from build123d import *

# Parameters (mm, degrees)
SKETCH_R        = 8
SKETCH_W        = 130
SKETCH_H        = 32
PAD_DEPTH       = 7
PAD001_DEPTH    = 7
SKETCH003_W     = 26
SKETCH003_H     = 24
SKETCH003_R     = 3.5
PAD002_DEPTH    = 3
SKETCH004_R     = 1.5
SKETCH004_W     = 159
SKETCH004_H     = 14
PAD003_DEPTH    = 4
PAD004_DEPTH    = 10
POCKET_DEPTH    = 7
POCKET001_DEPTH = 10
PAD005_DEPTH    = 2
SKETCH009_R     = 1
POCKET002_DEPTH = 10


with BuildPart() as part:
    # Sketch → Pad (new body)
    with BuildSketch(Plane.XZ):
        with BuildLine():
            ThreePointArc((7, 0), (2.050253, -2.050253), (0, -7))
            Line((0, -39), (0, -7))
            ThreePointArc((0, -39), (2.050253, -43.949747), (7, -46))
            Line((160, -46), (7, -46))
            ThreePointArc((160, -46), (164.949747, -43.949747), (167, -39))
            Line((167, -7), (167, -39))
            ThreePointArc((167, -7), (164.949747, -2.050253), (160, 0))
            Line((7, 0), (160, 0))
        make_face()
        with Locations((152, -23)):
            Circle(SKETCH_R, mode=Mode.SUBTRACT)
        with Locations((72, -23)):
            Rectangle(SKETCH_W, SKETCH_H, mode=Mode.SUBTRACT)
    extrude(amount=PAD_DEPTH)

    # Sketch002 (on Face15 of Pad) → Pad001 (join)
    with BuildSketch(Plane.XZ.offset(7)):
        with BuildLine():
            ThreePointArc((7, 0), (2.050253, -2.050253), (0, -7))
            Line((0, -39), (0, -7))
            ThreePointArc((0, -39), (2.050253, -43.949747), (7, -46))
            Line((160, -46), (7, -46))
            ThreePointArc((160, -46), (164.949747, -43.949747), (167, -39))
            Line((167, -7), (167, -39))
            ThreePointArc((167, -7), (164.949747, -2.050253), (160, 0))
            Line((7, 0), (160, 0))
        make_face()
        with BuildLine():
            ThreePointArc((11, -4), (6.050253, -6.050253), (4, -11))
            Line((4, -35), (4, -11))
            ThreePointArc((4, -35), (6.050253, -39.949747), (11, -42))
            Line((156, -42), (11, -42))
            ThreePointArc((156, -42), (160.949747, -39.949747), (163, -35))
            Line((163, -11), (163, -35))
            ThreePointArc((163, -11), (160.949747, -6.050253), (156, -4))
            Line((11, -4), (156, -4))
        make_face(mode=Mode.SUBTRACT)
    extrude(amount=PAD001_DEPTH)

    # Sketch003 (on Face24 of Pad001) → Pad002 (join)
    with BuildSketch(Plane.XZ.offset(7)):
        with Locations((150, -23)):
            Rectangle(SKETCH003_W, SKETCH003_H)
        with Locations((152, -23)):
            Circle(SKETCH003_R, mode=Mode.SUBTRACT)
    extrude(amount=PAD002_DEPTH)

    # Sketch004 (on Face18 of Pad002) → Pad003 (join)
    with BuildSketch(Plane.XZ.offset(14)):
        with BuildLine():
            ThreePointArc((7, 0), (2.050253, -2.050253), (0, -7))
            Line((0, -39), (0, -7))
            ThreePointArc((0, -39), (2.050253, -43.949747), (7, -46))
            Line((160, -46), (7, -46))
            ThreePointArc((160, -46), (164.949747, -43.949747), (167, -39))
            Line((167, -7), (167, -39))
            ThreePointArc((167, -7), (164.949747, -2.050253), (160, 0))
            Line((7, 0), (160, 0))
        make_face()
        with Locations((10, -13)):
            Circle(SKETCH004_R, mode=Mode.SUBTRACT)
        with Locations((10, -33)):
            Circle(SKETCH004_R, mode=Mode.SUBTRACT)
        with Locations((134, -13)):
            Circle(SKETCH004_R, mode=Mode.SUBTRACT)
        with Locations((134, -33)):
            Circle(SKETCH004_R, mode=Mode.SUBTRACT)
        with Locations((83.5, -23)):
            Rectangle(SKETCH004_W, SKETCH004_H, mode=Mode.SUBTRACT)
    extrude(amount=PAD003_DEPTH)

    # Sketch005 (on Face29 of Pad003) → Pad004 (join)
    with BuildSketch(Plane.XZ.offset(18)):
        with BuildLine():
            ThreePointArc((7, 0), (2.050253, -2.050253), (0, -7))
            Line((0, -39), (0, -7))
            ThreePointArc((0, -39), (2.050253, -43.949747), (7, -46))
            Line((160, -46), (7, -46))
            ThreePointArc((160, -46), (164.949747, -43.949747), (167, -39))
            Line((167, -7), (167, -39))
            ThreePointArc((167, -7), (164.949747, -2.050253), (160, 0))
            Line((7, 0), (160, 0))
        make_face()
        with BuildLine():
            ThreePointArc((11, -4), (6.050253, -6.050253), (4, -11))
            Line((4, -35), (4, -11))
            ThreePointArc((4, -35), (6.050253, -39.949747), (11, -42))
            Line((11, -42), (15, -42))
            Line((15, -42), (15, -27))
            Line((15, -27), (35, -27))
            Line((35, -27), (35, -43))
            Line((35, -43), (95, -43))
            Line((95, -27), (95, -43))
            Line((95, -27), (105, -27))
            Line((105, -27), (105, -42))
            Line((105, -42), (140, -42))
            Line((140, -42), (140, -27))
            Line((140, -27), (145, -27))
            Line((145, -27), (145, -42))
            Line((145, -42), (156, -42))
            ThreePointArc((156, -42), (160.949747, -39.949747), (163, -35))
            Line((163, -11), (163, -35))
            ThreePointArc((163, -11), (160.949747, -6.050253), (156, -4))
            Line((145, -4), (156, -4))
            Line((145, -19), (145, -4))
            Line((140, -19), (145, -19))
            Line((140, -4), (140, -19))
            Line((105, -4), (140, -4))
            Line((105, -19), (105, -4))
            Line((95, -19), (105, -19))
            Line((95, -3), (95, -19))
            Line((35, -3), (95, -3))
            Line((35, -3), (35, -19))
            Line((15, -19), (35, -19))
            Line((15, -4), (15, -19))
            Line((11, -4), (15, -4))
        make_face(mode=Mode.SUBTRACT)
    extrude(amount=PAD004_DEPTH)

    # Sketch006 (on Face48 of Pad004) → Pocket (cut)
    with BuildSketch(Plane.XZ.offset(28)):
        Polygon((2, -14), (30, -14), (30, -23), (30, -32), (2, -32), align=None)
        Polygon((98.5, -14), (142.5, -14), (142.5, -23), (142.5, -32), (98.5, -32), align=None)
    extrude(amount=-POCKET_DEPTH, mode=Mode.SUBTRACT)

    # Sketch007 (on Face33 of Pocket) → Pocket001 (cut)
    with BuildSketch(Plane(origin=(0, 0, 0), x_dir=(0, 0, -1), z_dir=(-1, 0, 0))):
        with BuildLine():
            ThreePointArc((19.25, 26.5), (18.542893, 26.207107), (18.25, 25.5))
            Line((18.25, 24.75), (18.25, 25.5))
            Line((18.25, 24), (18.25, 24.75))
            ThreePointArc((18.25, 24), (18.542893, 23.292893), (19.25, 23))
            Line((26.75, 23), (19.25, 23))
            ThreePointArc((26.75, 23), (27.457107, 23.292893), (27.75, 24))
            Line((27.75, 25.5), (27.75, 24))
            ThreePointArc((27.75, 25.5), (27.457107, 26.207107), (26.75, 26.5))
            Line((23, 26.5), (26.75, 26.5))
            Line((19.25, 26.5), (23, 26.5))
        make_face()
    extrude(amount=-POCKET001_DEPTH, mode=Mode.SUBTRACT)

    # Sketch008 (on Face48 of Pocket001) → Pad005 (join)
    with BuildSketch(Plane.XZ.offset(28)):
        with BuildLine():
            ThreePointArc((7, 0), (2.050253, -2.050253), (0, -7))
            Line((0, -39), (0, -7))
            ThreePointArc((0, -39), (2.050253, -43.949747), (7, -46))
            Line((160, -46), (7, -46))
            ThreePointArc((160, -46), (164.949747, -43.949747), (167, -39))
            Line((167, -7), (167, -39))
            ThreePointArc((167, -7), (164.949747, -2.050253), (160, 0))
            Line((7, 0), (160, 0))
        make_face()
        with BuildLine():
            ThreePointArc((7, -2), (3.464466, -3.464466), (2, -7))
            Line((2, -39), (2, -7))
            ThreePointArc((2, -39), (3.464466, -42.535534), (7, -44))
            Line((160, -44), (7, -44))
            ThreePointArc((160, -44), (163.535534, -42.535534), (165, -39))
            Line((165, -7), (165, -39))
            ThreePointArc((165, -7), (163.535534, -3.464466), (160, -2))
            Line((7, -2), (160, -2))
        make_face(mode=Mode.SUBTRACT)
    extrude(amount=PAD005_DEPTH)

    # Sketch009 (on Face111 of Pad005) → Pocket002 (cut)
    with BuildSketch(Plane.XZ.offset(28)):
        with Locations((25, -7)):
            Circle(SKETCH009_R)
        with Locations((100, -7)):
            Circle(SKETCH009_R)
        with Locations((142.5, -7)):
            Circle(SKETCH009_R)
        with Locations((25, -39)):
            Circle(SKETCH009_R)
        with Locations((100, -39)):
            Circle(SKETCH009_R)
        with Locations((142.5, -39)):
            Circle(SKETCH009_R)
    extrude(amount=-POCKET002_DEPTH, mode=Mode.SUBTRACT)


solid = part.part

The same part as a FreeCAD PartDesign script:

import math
import FreeCAD as App
import Part
import Sketcher
from FreeCAD import Vector
Q = App.Units.Quantity

doc = App.newDocument("Part")
body = doc.addObject("PartDesign::Body", "Body")

sketch1 = doc.addObject("Sketcher::SketchObject", "Sketch")
body.addObject(sketch1)
sketch1.AttachmentSupport = (doc.XZ_Plane, [""])
sketch1.MapMode = "FlatFace"
sketch1.addGeometry([
    Part.ArcOfCircle(Part.Circle(Vector(7.000002, -7.000002, 0), Vector(0, 0, 1), 7.000002), math.radians(90.000013), math.radians(179.999987)),
    Part.LineSegment(Vector(0, -7, 0), Vector(0, -39, 0)),
    Part.ArcOfCircle(Part.Circle(Vector(7.000002, -38.999998, 0), Vector(0, 0, 1), 7.000002), math.radians(-179.999987), math.radians(-90.000013)),
    Part.LineSegment(Vector(7, -46, 0), Vector(160, -46, 0)),
    Part.ArcOfCircle(Part.Circle(Vector(159.999998, -38.999998, 0), Vector(0, 0, 1), 7.000002), math.radians(-89.999987), math.radians(-0.000013)),
    Part.LineSegment(Vector(167, -39, 0), Vector(167, -7, 0)),
    Part.ArcOfCircle(Part.Circle(Vector(159.999998, -7.000002, 0), Vector(0, 0, 1), 7.000002), math.radians(0.000013), math.radians(89.999987)),
    Part.LineSegment(Vector(160, 0, 0), Vector(7, 0, 0)),
    Part.LineSegment(Vector(137, -39, 0), Vector(7, -39, 0)),
    Part.LineSegment(Vector(7, -39, 0), Vector(7, -7, 0)),
    Part.LineSegment(Vector(7, -7, 0), Vector(137, -7, 0)),
    Part.LineSegment(Vector(137, -7, 0), Vector(137, -39, 0)),
    Part.Circle(Vector(152, -23, 0), Vector(0, 0, 1), 8),
], False)
sketch1.addConstraint([
    Sketcher.Constraint("Tangent", 0, 2, 1, 1),
    Sketcher.Constraint("Tangent", 1, 2, 2, 1),
    Sketcher.Constraint("Tangent", 2, 2, 3, 1),
    Sketcher.Constraint("Tangent", 3, 2, 4, 1),
    Sketcher.Constraint("Tangent", 4, 2, 5, 1),
    Sketcher.Constraint("Tangent", 5, 2, 6, 1),
    Sketcher.Constraint("Tangent", 6, 2, 7, 1),
    Sketcher.Constraint("Tangent", 7, 2, 0, 1),
    Sketcher.Constraint("Coincident", 8, 2, 9, 1),
    Sketcher.Constraint("Coincident", 9, 2, 10, 1),
    Sketcher.Constraint("Coincident", 10, 2, 11, 1),
    Sketcher.Constraint("Coincident", 11, 2, 8, 1),
    Sketcher.Constraint("Vertical", 1),
    Sketcher.Constraint("Horizontal", 3),
    Sketcher.Constraint("Vertical", 5),
    Sketcher.Constraint("Horizontal", 7),
    Sketcher.Constraint("Horizontal", 8),
    Sketcher.Constraint("Vertical", 9),
    Sketcher.Constraint("Horizontal", 10),
    Sketcher.Constraint("Vertical", 11),
    Sketcher.Constraint("Coincident", 8, 2, 2, 3),
    Sketcher.Constraint("Coincident", 9, 2, 0, 3),
    Sketcher.Constraint("Equal", 2, 4),
    Sketcher.Constraint("Equal", 4, 6),
    Sketcher.Constraint("PointOnObject", 0, 2, -2),
    Sketcher.Constraint("PointOnObject", 6, 2, -1),
    Sketcher.Constraint("Diameter", 12, Q("16 mm")),
    Sketcher.Constraint("Radius", 0, Q("7.000002 mm")),
    Sketcher.Constraint("DistanceX", 3, 1, 3, 2, Q("153 mm")),
    Sketcher.Constraint("DistanceX", 8, 2, 8, 1, Q("130 mm")),
    Sketcher.Constraint("DistanceY", 1, 2, 1, 1, Q("32 mm")),
    Sketcher.Constraint("DistanceX", -1, 1, 12, 3, Q("152 mm")),
    Sketcher.Constraint("DistanceY", 12, 3, -1, 1, Q("23 mm")),
])
pad1 = doc.addObject("PartDesign::Pad", "Pad")
body.addObject(pad1)
pad1.Profile = sketch1
pad1.Length = 7

sketch2 = doc.addObject("Sketcher::SketchObject", "Sketch001")
body.addObject(sketch2)
sketch2.AttachmentSupport = (doc.XZ_Plane, [""])
sketch2.MapMode = "FlatFace"
sketch2.AttachmentOffset = App.Placement(Vector(0, 0, 7), App.Rotation())
sketch2.addGeometry([
    Part.ArcOfCircle(Part.Circle(Vector(7.000002, -7.000002, 0), Vector(0, 0, 1), 7.000002), math.radians(90.000013), math.radians(179.999987)),
    Part.LineSegment(Vector(0, -7, 0), Vector(0, -39, 0)),
    Part.ArcOfCircle(Part.Circle(Vector(7.000002, -38.999998, 0), Vector(0, 0, 1), 7.000002), math.radians(-179.999987), math.radians(-90.000013)),
    Part.LineSegment(Vector(7, -46, 0), Vector(160, -46, 0)),
    Part.ArcOfCircle(Part.Circle(Vector(159.999998, -38.999998, 0), Vector(0, 0, 1), 7.000002), math.radians(-89.999987), math.radians(-0.000013)),
    Part.LineSegment(Vector(167, -39, 0), Vector(167, -7, 0)),
    Part.ArcOfCircle(Part.Circle(Vector(159.999998, -7.000002, 0), Vector(0, 0, 1), 7.000002), math.radians(0.000013), math.radians(89.999987)),
    Part.LineSegment(Vector(160, 0, 0), Vector(7, 0, 0)),
    Part.ArcOfCircle(Part.Circle(Vector(11.000002, -11.000002, 0), Vector(0, 0, 1), 7.000002), math.radians(90.000013), math.radians(179.999987)),
    Part.LineSegment(Vector(11, -4, 0), Vector(156, -4, 0)),
    Part.ArcOfCircle(Part.Circle(Vector(155.999998, -11.000002, 0), Vector(0, 0, 1), 7.000002), math.radians(0.000013), math.radians(89.999987)),
    Part.LineSegment(Vector(163, -11, 0), Vector(163, -35, 0)),
    Part.ArcOfCircle(Part.Circle(Vector(155.999998, -34.999998, 0), Vector(0, 0, 1), 7.000002), math.radians(-89.999987), math.radians(-0.000013)),
    Part.LineSegment(Vector(156, -42, 0), Vector(11, -42, 0)),
    Part.ArcOfCircle(Part.Circle(Vector(11.000002, -34.999998, 0), Vector(0, 0, 1), 7.000002), math.radians(-179.999987), math.radians(-90.000013)),
    Part.LineSegment(Vector(4, -35, 0), Vector(4, -11, 0)),
], False)
sketch2.addConstraint([
    Sketcher.Constraint("Tangent", 0, 2, 1, 1),
    Sketcher.Constraint("Tangent", 1, 2, 2, 1),
    Sketcher.Constraint("Tangent", 2, 2, 3, 1),
    Sketcher.Constraint("Tangent", 3, 2, 4, 1),
    Sketcher.Constraint("Tangent", 4, 2, 5, 1),
    Sketcher.Constraint("Tangent", 5, 2, 6, 1),
    Sketcher.Constraint("Tangent", 6, 2, 7, 1),
    Sketcher.Constraint("Tangent", 7, 2, 0, 1),
    Sketcher.Constraint("Tangent", 8, 1, 9, 1),
    Sketcher.Constraint("Tangent", 9, 2, 10, 2),
    Sketcher.Constraint("Tangent", 10, 1, 11, 1),
    Sketcher.Constraint("Tangent", 11, 2, 12, 2),
    Sketcher.Constraint("Tangent", 12, 1, 13, 1),
    Sketcher.Constraint("Tangent", 13, 2, 14, 2),
    Sketcher.Constraint("Tangent", 14, 1, 15, 1),
    Sketcher.Constraint("Tangent", 15, 2, 8, 2),
    Sketcher.Constraint("Vertical", 1),
    Sketcher.Constraint("Horizontal", 3),
    Sketcher.Constraint("Vertical", 5),
    Sketcher.Constraint("Horizontal", 7),
    Sketcher.Constraint("Horizontal", 9),
    Sketcher.Constraint("Vertical", 11),
    Sketcher.Constraint("Horizontal", 13),
    Sketcher.Constraint("Vertical", 15),
    Sketcher.Constraint("Equal", 0, 2),
    Sketcher.Constraint("Equal", 2, 4),
    Sketcher.Constraint("Equal", 4, 6),
    Sketcher.Constraint("Equal", 6, 8),
    Sketcher.Constraint("Equal", 8, 10),
    Sketcher.Constraint("Equal", 10, 12),
    Sketcher.Constraint("Equal", 12, 14),
    Sketcher.Constraint("PointOnObject", 0, 2, -2),
    Sketcher.Constraint("PointOnObject", 6, 2, -1),
    Sketcher.Constraint("Radius", 0, Q("7.000002 mm")),
    Sketcher.Constraint("DistanceX", 3, 1, 3, 2, Q("153 mm")),
    Sketcher.Constraint("DistanceX", 9, 1, 9, 2, Q("145 mm")),
    Sketcher.Constraint("DistanceY", 1, 2, 1, 1, Q("32 mm")),
    Sketcher.Constraint("DistanceY", 11, 2, 11, 1, Q("24 mm")),
    Sketcher.Constraint("DistanceX", -1, 1, 8, 3, Q("11.000002 mm")),
    Sketcher.Constraint("DistanceY", 8, 3, -1, 1, Q("11.000002 mm")),
])
pad2 = doc.addObject("PartDesign::Pad", "Pad001")
body.addObject(pad2)
pad2.Profile = sketch2
pad2.Length = 7

sketch3 = doc.addObject("Sketcher::SketchObject", "Sketch002")
body.addObject(sketch3)
sketch3.AttachmentSupport = (doc.XZ_Plane, [""])
sketch3.MapMode = "FlatFace"
sketch3.AttachmentOffset = App.Placement(Vector(0, 0, 7), App.Rotation())
sketch3.addGeometry([
    Part.LineSegment(Vector(137, -11, 0), Vector(137, -35, 0)),
    Part.LineSegment(Vector(137, -35, 0), Vector(163, -35, 0)),
    Part.LineSegment(Vector(163, -35, 0), Vector(163, -11, 0)),
    Part.LineSegment(Vector(163, -11, 0), Vector(137, -11, 0)),
    Part.Circle(Vector(152, -23, 0), Vector(0, 0, 1), 3.5),
], False)
sketch3.addConstraint([
    Sketcher.Constraint("Coincident", 0, 2, 1, 1),
    Sketcher.Constraint("Coincident", 1, 2, 2, 1),
    Sketcher.Constraint("Coincident", 2, 2, 3, 1),
    Sketcher.Constraint("Coincident", 3, 2, 0, 1),
    Sketcher.Constraint("Vertical", 0),
    Sketcher.Constraint("Horizontal", 1),
    Sketcher.Constraint("Vertical", 2),
    Sketcher.Constraint("Horizontal", 3),
    Sketcher.Constraint("Diameter", 4, Q("7 mm")),
    Sketcher.Constraint("DistanceX", 1, 1, 1, 2, Q("26 mm")),
    Sketcher.Constraint("DistanceY", 0, 2, 0, 1, Q("24 mm")),
    Sketcher.Constraint("DistanceX", -1, 1, 4, 3, Q("152 mm")),
    Sketcher.Constraint("DistanceY", 4, 3, -1, 1, Q("23 mm")),
    Sketcher.Constraint("DistanceX", -1, 1, 0, 2, Q("137 mm")),
    Sketcher.Constraint("DistanceY", 0, 2, -1, 1, Q("35 mm")),
])
pad3 = doc.addObject("PartDesign::Pad", "Pad002")
body.addObject(pad3)
pad3.Profile = sketch3
pad3.Length = 3

sketch4 = doc.addObject("Sketcher::SketchObject", "Sketch003")
body.addObject(sketch4)
sketch4.AttachmentSupport = (doc.XZ_Plane, [""])
sketch4.MapMode = "FlatFace"
sketch4.AttachmentOffset = App.Placement(Vector(0, 0, 14), App.Rotation())
sketch4.addGeometry([
    Part.ArcOfCircle(Part.Circle(Vector(7.000002, -7.000002, 0), Vector(0, 0, 1), 7.000002), math.radians(90.000013), math.radians(179.999987)),
    Part.LineSegment(Vector(0, -7, 0), Vector(0, -39, 0)),
    Part.ArcOfCircle(Part.Circle(Vector(7.000002, -38.999998, 0), Vector(0, 0, 1), 7.000002), math.radians(-179.999987), math.radians(-90.000013)),
    Part.LineSegment(Vector(7, -46, 0), Vector(160, -46, 0)),
    Part.ArcOfCircle(Part.Circle(Vector(159.999998, -38.999998, 0), Vector(0, 0, 1), 7.000002), math.radians(-89.999987), math.radians(-0.000013)),
    Part.LineSegment(Vector(167, -39, 0), Vector(167, -7, 0)),
    Part.ArcOfCircle(Part.Circle(Vector(159.999998, -7.000002, 0), Vector(0, 0, 1), 7.000002), math.radians(0.000013), math.radians(89.999987)),
    Part.LineSegment(Vector(160, 0, 0), Vector(7, 0, 0)),
    Part.Circle(Vector(10, -33, 0), Vector(0, 0, 1), 1.5),
    Part.Circle(Vector(134, -33, 0), Vector(0, 0, 1), 1.5),
    Part.Circle(Vector(10, -13, 0), Vector(0, 0, 1), 1.5),
    Part.LineSegment(Vector(163, -30, 0), Vector(4, -30, 0)),
    Part.LineSegment(Vector(4, -30, 0), Vector(4, -16, 0)),
    Part.LineSegment(Vector(4, -16, 0), Vector(163, -16, 0)),
    Part.LineSegment(Vector(163, -16, 0), Vector(163, -30, 0)),
    Part.Circle(Vector(134, -13, 0), Vector(0, 0, 1), 1.5),
], False)
sketch4.addConstraint([
    Sketcher.Constraint("Tangent", 0, 2, 1, 1),
    Sketcher.Constraint("Tangent", 1, 2, 2, 1),
    Sketcher.Constraint("Tangent", 2, 2, 3, 1),
    Sketcher.Constraint("Tangent", 3, 2, 4, 1),
    Sketcher.Constraint("Tangent", 4, 2, 5, 1),
    Sketcher.Constraint("Tangent", 5, 2, 6, 1),
    Sketcher.Constraint("Tangent", 6, 2, 7, 1),
    Sketcher.Constraint("Tangent", 7, 2, 0, 1),
    Sketcher.Constraint("Coincident", 11, 2, 12, 1),
    Sketcher.Constraint("Coincident", 12, 2, 13, 1),
    Sketcher.Constraint("Coincident", 13, 2, 14, 1),
    Sketcher.Constraint("Coincident", 14, 2, 11, 1),
    Sketcher.Constraint("Vertical", 1),
    Sketcher.Constraint("Horizontal", 3),
    Sketcher.Constraint("Vertical", 5),
    Sketcher.Constraint("Horizontal", 7),
    Sketcher.Constraint("Horizontal", 11),
    Sketcher.Constraint("Vertical", 12),
    Sketcher.Constraint("Horizontal", 13),
    Sketcher.Constraint("Vertical", 14),
    Sketcher.Constraint("Equal", 0, 2),
    Sketcher.Constraint("Equal", 2, 4),
    Sketcher.Constraint("Equal", 4, 6),
    Sketcher.Constraint("Equal", 8, 9),
    Sketcher.Constraint("Equal", 9, 10),
    Sketcher.Constraint("Equal", 10, 15),
    Sketcher.Constraint("PointOnObject", 0, 2, -2),
    Sketcher.Constraint("PointOnObject", 6, 2, -1),
    Sketcher.Constraint("Horizontal", 8, 3, 9, 3),
    Sketcher.Constraint("Horizontal", 10, 3, 15, 3),
    Sketcher.Constraint("Vertical", 8, 3, 10, 3),
    Sketcher.Constraint("Vertical", 9, 3, 15, 3),
    Sketcher.Constraint("Diameter", 8, Q("3 mm")),
    Sketcher.Constraint("Radius", 0, Q("7.000002 mm")),
    Sketcher.Constraint("DistanceX", 3, 1, 3, 2, Q("153 mm")),
    Sketcher.Constraint("DistanceX", 11, 2, 11, 1, Q("159 mm")),
    Sketcher.Constraint("DistanceY", 1, 2, 1, 1, Q("32 mm")),
    Sketcher.Constraint("DistanceY", 12, 1, 12, 2, Q("14 mm")),
    Sketcher.Constraint("DistanceX", -1, 1, 8, 3, Q("10 mm")),
    Sketcher.Constraint("DistanceY", 8, 3, -1, 1, Q("33 mm")),
    Sketcher.Constraint("DistanceX", -1, 1, 9, 3, Q("134 mm")),
    Sketcher.Constraint("DistanceY", 10, 3, -1, 1, Q("13 mm")),
    Sketcher.Constraint("DistanceX", -1, 1, 11, 2, Q("4 mm")),
    Sketcher.Constraint("DistanceY", 11, 2, -1, 1, Q("30 mm")),
])
pad4 = doc.addObject("PartDesign::Pad", "Pad003")
body.addObject(pad4)
pad4.Profile = sketch4
pad4.Length = 4

sketch5 = doc.addObject("Sketcher::SketchObject", "Sketch004")
body.addObject(sketch5)
sketch5.AttachmentSupport = (doc.XZ_Plane, [""])
sketch5.MapMode = "FlatFace"
sketch5.AttachmentOffset = App.Placement(Vector(0, 0, 18), App.Rotation())
sketch5.addGeometry([
    Part.ArcOfCircle(Part.Circle(Vector(7.000002, -7.000002, 0), Vector(0, 0, 1), 7.000002), math.radians(90.000013), math.radians(179.999987)),
    Part.LineSegment(Vector(0, -7, 0), Vector(0, -39, 0)),
    Part.ArcOfCircle(Part.Circle(Vector(7.000002, -38.999998, 0), Vector(0, 0, 1), 7.000002), math.radians(-179.999987), math.radians(-90.000013)),
    Part.LineSegment(Vector(7, -46, 0), Vector(160, -46, 0)),
    Part.ArcOfCircle(Part.Circle(Vector(159.999998, -38.999998, 0), Vector(0, 0, 1), 7.000002), math.radians(-89.999987), math.radians(-0.000013)),
    Part.LineSegment(Vector(167, -39, 0), Vector(167, -7, 0)),
    Part.ArcOfCircle(Part.Circle(Vector(159.999998, -7.000002, 0), Vector(0, 0, 1), 7.000002), math.radians(0.000013), math.radians(89.999987)),
    Part.LineSegment(Vector(160, 0, 0), Vector(7, 0, 0)),
    Part.ArcOfCircle(Part.Circle(Vector(11.000002, -11.000002, 0), Vector(0, 0, 1), 7.000002), math.radians(90.000013), math.radians(179.999987)),
    Part.LineSegment(Vector(11, -4, 0), Vector(15, -4, 0)),
    Part.LineSegment(Vector(15, -4, 0), Vector(15, -19, 0)),
    Part.LineSegment(Vector(15, -19, 0), Vector(35, -19, 0)),
    Part.LineSegment(Vector(35, -19, 0), Vector(35, -3, 0)),
    Part.LineSegment(Vector(35, -3, 0), Vector(95, -3, 0)),
    Part.LineSegment(Vector(95, -3, 0), Vector(95, -19, 0)),
    Part.LineSegment(Vector(95, -19, 0), Vector(105, -19, 0)),
    Part.LineSegment(Vector(105, -19, 0), Vector(105, -4, 0)),
    Part.LineSegment(Vector(105, -4, 0), Vector(140, -4, 0)),
    Part.LineSegment(Vector(140, -4, 0), Vector(140, -19, 0)),
    Part.LineSegment(Vector(140, -19, 0), Vector(145, -19, 0)),
    Part.LineSegment(Vector(145, -19, 0), Vector(145, -4, 0)),
    Part.LineSegment(Vector(145, -4, 0), Vector(156, -4, 0)),
    Part.ArcOfCircle(Part.Circle(Vector(155.999998, -11.000002, 0), Vector(0, 0, 1), 7.000002), math.radians(0.000013), math.radians(89.999987)),
    Part.LineSegment(Vector(163, -11, 0), Vector(163, -35, 0)),
    Part.ArcOfCircle(Part.Circle(Vector(155.999998, -34.999998, 0), Vector(0, 0, 1), 7.000002), math.radians(-89.999987), math.radians(-0.000013)),
    Part.LineSegment(Vector(156, -42, 0), Vector(145, -42, 0)),
    Part.LineSegment(Vector(145, -42, 0), Vector(145, -27, 0)),
    Part.LineSegment(Vector(145, -27, 0), Vector(140, -27, 0)),
    Part.LineSegment(Vector(140, -27, 0), Vector(140, -42, 0)),
    Part.LineSegment(Vector(140, -42, 0), Vector(105, -42, 0)),
    Part.LineSegment(Vector(105, -42, 0), Vector(105, -27, 0)),
    Part.LineSegment(Vector(105, -27, 0), Vector(95, -27, 0)),
    Part.LineSegment(Vector(95, -27, 0), Vector(95, -43, 0)),
    Part.LineSegment(Vector(95, -43, 0), Vector(35, -43, 0)),
    Part.LineSegment(Vector(35, -43, 0), Vector(35, -27, 0)),
    Part.LineSegment(Vector(35, -27, 0), Vector(15, -27, 0)),
    Part.LineSegment(Vector(15, -27, 0), Vector(15, -42, 0)),
    Part.LineSegment(Vector(15, -42, 0), Vector(11, -42, 0)),
    Part.ArcOfCircle(Part.Circle(Vector(11.000002, -34.999998, 0), Vector(0, 0, 1), 7.000002), math.radians(-179.999987), math.radians(-90.000013)),
    Part.LineSegment(Vector(4, -35, 0), Vector(4, -11, 0)),
], False)
sketch5.addConstraint([
    Sketcher.Constraint("Tangent", 0, 2, 1, 1),
    Sketcher.Constraint("Tangent", 1, 2, 2, 1),
    Sketcher.Constraint("Tangent", 2, 2, 3, 1),
    Sketcher.Constraint("Tangent", 3, 2, 4, 1),
    Sketcher.Constraint("Tangent", 4, 2, 5, 1),
    Sketcher.Constraint("Tangent", 5, 2, 6, 1),
    Sketcher.Constraint("Tangent", 6, 2, 7, 1),
    Sketcher.Constraint("Tangent", 7, 2, 0, 1),
    Sketcher.Constraint("Tangent", 8, 1, 9, 1),
    Sketcher.Constraint("Coincident", 9, 2, 10, 1),
    Sketcher.Constraint("Coincident", 10, 2, 11, 1),
    Sketcher.Constraint("Coincident", 11, 2, 12, 1),
    Sketcher.Constraint("Coincident", 12, 2, 13, 1),
    Sketcher.Constraint("Coincident", 13, 2, 14, 1),
    Sketcher.Constraint("Coincident", 14, 2, 15, 1),
    Sketcher.Constraint("Coincident", 15, 2, 16, 1),
    Sketcher.Constraint("Coincident", 16, 2, 17, 1),
    Sketcher.Constraint("Coincident", 17, 2, 18, 1),
    Sketcher.Constraint("Coincident", 18, 2, 19, 1),
    Sketcher.Constraint("Coincident", 19, 2, 20, 1),
    Sketcher.Constraint("Coincident", 20, 2, 21, 1),
    Sketcher.Constraint("Tangent", 21, 2, 22, 2),
    Sketcher.Constraint("Tangent", 22, 1, 23, 1),
    Sketcher.Constraint("Tangent", 23, 2, 24, 2),
    Sketcher.Constraint("Tangent", 24, 1, 25, 1),
    Sketcher.Constraint("Coincident", 25, 2, 26, 1),
    Sketcher.Constraint("Coincident", 26, 2, 27, 1),
    Sketcher.Constraint("Coincident", 27, 2, 28, 1),
    Sketcher.Constraint("Coincident", 28, 2, 29, 1),
    Sketcher.Constraint("Coincident", 29, 2, 30, 1),
    Sketcher.Constraint("Coincident", 30, 2, 31, 1),
    Sketcher.Constraint("Coincident", 31, 2, 32, 1),
    Sketcher.Constraint("Coincident", 32, 2, 33, 1),
    Sketcher.Constraint("Coincident", 33, 2, 34, 1),
    Sketcher.Constraint("Coincident", 34, 2, 35, 1),
    Sketcher.Constraint("Coincident", 35, 2, 36, 1),
    Sketcher.Constraint("Coincident", 36, 2, 37, 1),
    Sketcher.Constraint("Tangent", 37, 2, 38, 2),
    Sketcher.Constraint("Tangent", 38, 1, 39, 1),
    Sketcher.Constraint("Tangent", 39, 2, 8, 2),
    Sketcher.Constraint("Vertical", 1),
    Sketcher.Constraint("Horizontal", 3),
    Sketcher.Constraint("Vertical", 5),
    Sketcher.Constraint("Horizontal", 7),
    Sketcher.Constraint("Horizontal", 9),
    Sketcher.Constraint("Vertical", 10),
    Sketcher.Constraint("Horizontal", 11),
    Sketcher.Constraint("Vertical", 12),
    Sketcher.Constraint("Horizontal", 13),
    Sketcher.Constraint("Vertical", 14),
    Sketcher.Constraint("Horizontal", 15),
    Sketcher.Constraint("Vertical", 16),
    Sketcher.Constraint("Horizontal", 17),
    Sketcher.Constraint("Vertical", 18),
    Sketcher.Constraint("Horizontal", 19),
    Sketcher.Constraint("Vertical", 20),
    Sketcher.Constraint("Horizontal", 21),
    Sketcher.Constraint("Vertical", 23),
    Sketcher.Constraint("Horizontal", 25),
    Sketcher.Constraint("Vertical", 26),
    Sketcher.Constraint("Horizontal", 27),
    Sketcher.Constraint("Vertical", 28),
    Sketcher.Constraint("Horizontal", 29),
    Sketcher.Constraint("Vertical", 30),
    Sketcher.Constraint("Horizontal", 31),
    Sketcher.Constraint("Vertical", 32),
    Sketcher.Constraint("Horizontal", 33),
    Sketcher.Constraint("Vertical", 34),
    Sketcher.Constraint("Horizontal", 35),
    Sketcher.Constraint("Vertical", 36),
    Sketcher.Constraint("Horizontal", 37),
    Sketcher.Constraint("Vertical", 39),
    Sketcher.Constraint("Equal", 0, 2),
    Sketcher.Constraint("Equal", 2, 4),
    Sketcher.Constraint("Equal", 4, 6),
    Sketcher.Constraint("Equal", 6, 8),
    Sketcher.Constraint("Equal", 8, 22),
    Sketcher.Constraint("Equal", 22, 24),
    Sketcher.Constraint("Equal", 24, 38),
    Sketcher.Constraint("PointOnObject", 0, 2, -2),
    Sketcher.Constraint("PointOnObject", 6, 2, -1),
    Sketcher.Constraint("Horizontal", 8, 3, 22, 3),
    Sketcher.Constraint("Horizontal", 24, 3, 38, 3),
    Sketcher.Constraint("Horizontal", 11, 2, 14, 2),
    Sketcher.Constraint("Horizontal", 9, 2, 16, 2),
    Sketcher.Constraint("Horizontal", 15, 2, 18, 2),
    Sketcher.Constraint("Horizontal", 25, 2, 28, 2),
    Sketcher.Constraint("Horizontal", 27, 2, 30, 2),
    Sketcher.Constraint("Horizontal", 31, 2, 34, 2),
    Sketcher.Constraint("Vertical", 20, 2, 25, 2),
    Sketcher.Constraint("Vertical", 18, 2, 27, 2),
    Sketcher.Constraint("Vertical", 16, 2, 29, 2),
    Sketcher.Constraint("Vertical", 14, 2, 31, 2),
    Sketcher.Constraint("Vertical", 12, 2, 33, 2),
    Sketcher.Constraint("Vertical", 10, 2, 35, 2),
    Sketcher.Constraint("Equal", 20, 26),
    Sketcher.Constraint("Equal", 14, 32),
    Sketcher.Constraint("Radius", 0, Q("7.000002 mm")),
    Sketcher.Constraint("DistanceX", 3, 1, 3, 2, Q("153 mm")),
    Sketcher.Constraint("DistanceX", 9, 1, 9, 2, Q("4 mm")),
    Sketcher.Constraint("DistanceX", 11, 1, 11, 2, Q("20 mm")),
    Sketcher.Constraint("DistanceX", 13, 1, 13, 2, Q("60 mm")),
    Sketcher.Constraint("DistanceX", 15, 1, 15, 2, Q("10 mm")),
    Sketcher.Constraint("DistanceX", 17, 1, 17, 2, Q("35 mm")),
    Sketcher.Constraint("DistanceX", 19, 1, 19, 2, Q("5 mm")),
    Sketcher.Constraint("DistanceX", 21, 1, 21, 2, Q("11 mm")),
    Sketcher.Constraint("DistanceY", 1, 2, 1, 1, Q("32 mm")),
    Sketcher.Constraint("DistanceY", 10, 2, 10, 1, Q("15 mm")),
    Sketcher.Constraint("DistanceY", 12, 1, 12, 2, Q("16 mm")),
    Sketcher.Constraint("DistanceY", 23, 2, 23, 1, Q("24 mm")),
    Sketcher.Constraint("DistanceX", -1, 1, 8, 3, Q("11.000002 mm")),
    Sketcher.Constraint("DistanceY", 8, 3, -1, 1, Q("11.000002 mm")),
])
pad5 = doc.addObject("PartDesign::Pad", "Pad004")
body.addObject(pad5)
pad5.Profile = sketch5
pad5.Length = 10

sketch6 = doc.addObject("Sketcher::SketchObject", "Sketch005")
body.addObject(sketch6)
sketch6.AttachmentSupport = (doc.XZ_Plane, [""])
sketch6.MapMode = "FlatFace"
sketch6.AttachmentOffset = App.Placement(Vector(0, 0, 28), App.Rotation())
sketch6.addGeometry([
    Part.LineSegment(Vector(30, -14, 0), Vector(2, -14, 0)),
    Part.LineSegment(Vector(2, -14, 0), Vector(2, -32, 0)),
    Part.LineSegment(Vector(2, -32, 0), Vector(30, -32, 0)),
    Part.LineSegment(Vector(30, -32, 0), Vector(30, -14, 0)),
    Part.LineSegment(Vector(142.5, -14, 0), Vector(98.5, -14, 0)),
    Part.LineSegment(Vector(98.5, -14, 0), Vector(98.5, -32, 0)),
    Part.LineSegment(Vector(98.5, -32, 0), Vector(142.5, -32, 0)),
    Part.LineSegment(Vector(142.5, -32, 0), Vector(142.5, -14, 0)),
], False)
sketch6.addConstraint([
    Sketcher.Constraint("Coincident", 0, 2, 1, 1),
    Sketcher.Constraint("Coincident", 1, 2, 2, 1),
    Sketcher.Constraint("Coincident", 2, 2, 3, 1),
    Sketcher.Constraint("Coincident", 3, 2, 0, 1),
    Sketcher.Constraint("Coincident", 4, 2, 5, 1),
    Sketcher.Constraint("Coincident", 5, 2, 6, 1),
    Sketcher.Constraint("Coincident", 6, 2, 7, 1),
    Sketcher.Constraint("Coincident", 7, 2, 4, 1),
    Sketcher.Constraint("Horizontal", 0),
    Sketcher.Constraint("Vertical", 1),
    Sketcher.Constraint("Horizontal", 2),
    Sketcher.Constraint("Vertical", 3),
    Sketcher.Constraint("Horizontal", 4),
    Sketcher.Constraint("Vertical", 5),
    Sketcher.Constraint("Horizontal", 6),
    Sketcher.Constraint("Vertical", 7),
    Sketcher.Constraint("Horizontal", 3, 2, 4, 2),
    Sketcher.Constraint("Horizontal", 2, 2, 5, 2),
    Sketcher.Constraint("DistanceX", 0, 2, 0, 1, Q("28 mm")),
    Sketcher.Constraint("DistanceX", 4, 2, 4, 1, Q("44 mm")),
    Sketcher.Constraint("DistanceY", 1, 2, 1, 1, Q("18 mm")),
    Sketcher.Constraint("DistanceX", -1, 1, 0, 2, Q("2 mm")),
    Sketcher.Constraint("DistanceY", 0, 2, -1, 1, Q("14 mm")),
    Sketcher.Constraint("DistanceX", -1, 1, 4, 2, Q("98.5 mm")),
])
pocket1 = doc.addObject("PartDesign::Pocket", "Pocket")
body.addObject(pocket1)
pocket1.Profile = sketch6
pocket1.Length = 7

sketch7 = doc.addObject("Sketcher::SketchObject", "Sketch006")
body.addObject(sketch7)
sketch7.AttachmentSupport = (doc.YZ_Plane, [""])
sketch7.MapMode = "FlatFace"
sketch7.addGeometry([
    Part.ArcOfCircle(Part.Circle(Vector(-25.500001, -19.249999, 0), Vector(0, 0, 1), 0.999999), math.radians(89.999957), math.radians(180.000043)),
    Part.LineSegment(Vector(-25.5, -18.25, 0), Vector(-24, -18.25, 0)),
    Part.ArcOfCircle(Part.Circle(Vector(-23.999999, -19.249999, 0), Vector(0, 0, 1), 0.999999), math.radians(-0.000043), math.radians(90.000043)),
    Part.LineSegment(Vector(-23, -19.25, 0), Vector(-23, -26.75, 0)),
    Part.ArcOfCircle(Part.Circle(Vector(-23.999999, -26.750001, 0), Vector(0, 0, 1), 0.999999), math.radians(-90.000043), math.radians(0.000043)),
    Part.LineSegment(Vector(-24, -27.75, 0), Vector(-25.5, -27.75, 0)),
    Part.ArcOfCircle(Part.Circle(Vector(-25.500001, -26.750001, 0), Vector(0, 0, 1), 0.999999), math.radians(179.999957), math.radians(270.000043)),
    Part.LineSegment(Vector(-26.5, -26.75, 0), Vector(-26.5, -19.25, 0)),
], False)
sketch7.addConstraint([
    Sketcher.Constraint("Tangent", 0, 1, 1, 1),
    Sketcher.Constraint("Tangent", 1, 2, 2, 2),
    Sketcher.Constraint("Tangent", 2, 1, 3, 1),
    Sketcher.Constraint("Tangent", 3, 2, 4, 2),
    Sketcher.Constraint("Tangent", 4, 1, 5, 1),
    Sketcher.Constraint("Tangent", 5, 2, 6, 2),
    Sketcher.Constraint("Tangent", 6, 1, 7, 1),
    Sketcher.Constraint("Tangent", 7, 2, 0, 2),
    Sketcher.Constraint("Horizontal", 1),
    Sketcher.Constraint("Vertical", 3),
    Sketcher.Constraint("Horizontal", 5),
    Sketcher.Constraint("Vertical", 7),
    Sketcher.Constraint("Equal", 0, 2),
    Sketcher.Constraint("Equal", 2, 4),
    Sketcher.Constraint("Equal", 4, 6),
    Sketcher.Constraint("Radius", 0, Q("0.999999 mm")),
    Sketcher.Constraint("DistanceX", 1, 1, 1, 2, Q("1.5 mm")),
    Sketcher.Constraint("DistanceY", 3, 2, 3, 1, Q("7.5 mm")),
    Sketcher.Constraint("DistanceX", 2, 3, -1, 1, Q("23.999999 mm")),
    Sketcher.Constraint("DistanceY", 0, 3, -1, 1, Q("19.249999 mm")),
])
pocket2 = doc.addObject("PartDesign::Pocket", "Pocket001")
body.addObject(pocket2)
pocket2.Profile = sketch7
pocket2.Length = 10
pocket2.Reversed = True

sketch8 = doc.addObject("Sketcher::SketchObject", "Sketch007")
body.addObject(sketch8)
sketch8.AttachmentSupport = (doc.XZ_Plane, [""])
sketch8.MapMode = "FlatFace"
sketch8.AttachmentOffset = App.Placement(Vector(0, 0, 28), App.Rotation())
sketch8.addGeometry([
    Part.ArcOfCircle(Part.Circle(Vector(7.000002, -7.000002, 0), Vector(0, 0, 1), 7.000002), math.radians(90.000013), math.radians(179.999987)),
    Part.LineSegment(Vector(0, -7, 0), Vector(0, -39, 0)),
    Part.ArcOfCircle(Part.Circle(Vector(7.000002, -38.999998, 0), Vector(0, 0, 1), 7.000002), math.radians(-179.999987), math.radians(-90.000013)),
    Part.LineSegment(Vector(7, -46, 0), Vector(160, -46, 0)),
    Part.ArcOfCircle(Part.Circle(Vector(159.999998, -38.999998, 0), Vector(0, 0, 1), 7.000002), math.radians(-89.999987), math.radians(-0.000013)),
    Part.LineSegment(Vector(167, -39, 0), Vector(167, -7, 0)),
    Part.ArcOfCircle(Part.Circle(Vector(159.999998, -7.000002, 0), Vector(0, 0, 1), 7.000002), math.radians(0.000013), math.radians(89.999987)),
    Part.LineSegment(Vector(160, 0, 0), Vector(7, 0, 0)),
    Part.ArcOfCircle(Part.Circle(Vector(7, -7, 0), Vector(0, 0, 1), 5), math.radians(89.999996), math.radians(180.000004)),
    Part.LineSegment(Vector(7, -2, 0), Vector(160, -2, 0)),
    Part.ArcOfCircle(Part.Circle(Vector(160, -7, 0), Vector(0, 0, 1), 5), math.radians(-0.000004), math.radians(90.000004)),
    Part.LineSegment(Vector(165, -7, 0), Vector(165, -39, 0)),
    Part.ArcOfCircle(Part.Circle(Vector(160, -39, 0), Vector(0, 0, 1), 5), math.radians(-90.000004), math.radians(0.000004)),
    Part.LineSegment(Vector(160, -44, 0), Vector(7, -44, 0)),
    Part.ArcOfCircle(Part.Circle(Vector(7, -39, 0), Vector(0, 0, 1), 5), math.radians(179.999996), math.radians(270.000004)),
    Part.LineSegment(Vector(2, -39, 0), Vector(2, -7, 0)),
], False)
sketch8.addConstraint([
    Sketcher.Constraint("Tangent", 0, 2, 1, 1),
    Sketcher.Constraint("Tangent", 1, 2, 2, 1),
    Sketcher.Constraint("Tangent", 2, 2, 3, 1),
    Sketcher.Constraint("Tangent", 3, 2, 4, 1),
    Sketcher.Constraint("Tangent", 4, 2, 5, 1),
    Sketcher.Constraint("Tangent", 5, 2, 6, 1),
    Sketcher.Constraint("Tangent", 6, 2, 7, 1),
    Sketcher.Constraint("Tangent", 7, 2, 0, 1),
    Sketcher.Constraint("Tangent", 8, 1, 9, 1),
    Sketcher.Constraint("Tangent", 9, 2, 10, 2),
    Sketcher.Constraint("Tangent", 10, 1, 11, 1),
    Sketcher.Constraint("Tangent", 11, 2, 12, 2),
    Sketcher.Constraint("Tangent", 12, 1, 13, 1),
    Sketcher.Constraint("Tangent", 13, 2, 14, 2),
    Sketcher.Constraint("Tangent", 14, 1, 15, 1),
    Sketcher.Constraint("Tangent", 15, 2, 8, 2),
    Sketcher.Constraint("Vertical", 1),
    Sketcher.Constraint("Horizontal", 3),
    Sketcher.Constraint("Vertical", 5),
    Sketcher.Constraint("Horizontal", 7),
    Sketcher.Constraint("Horizontal", 9),
    Sketcher.Constraint("Vertical", 11),
    Sketcher.Constraint("Horizontal", 13),
    Sketcher.Constraint("Vertical", 15),
    Sketcher.Constraint("Coincident", 8, 3, 0, 3),
    Sketcher.Constraint("Coincident", 10, 3, 6, 3),
    Sketcher.Constraint("Coincident", 12, 3, 4, 3),
    Sketcher.Constraint("Equal", 0, 2),
    Sketcher.Constraint("Equal", 2, 4),
    Sketcher.Constraint("Equal", 4, 6),
    Sketcher.Constraint("Equal", 12, 14),
    Sketcher.Constraint("PointOnObject", 0, 2, -2),
    Sketcher.Constraint("PointOnObject", 6, 2, -1),
    Sketcher.Constraint("Radius", 0, Q("7.000002 mm")),
    Sketcher.Constraint("Radius", 8, Q("5 mm")),
    Sketcher.Constraint("DistanceX", 3, 1, 3, 2, Q("153 mm")),
    Sketcher.Constraint("DistanceY", 1, 2, 1, 1, Q("32 mm")),
])
pad6 = doc.addObject("PartDesign::Pad", "Pad005")
body.addObject(pad6)
pad6.Profile = sketch8
pad6.Length = 2

sketch9 = doc.addObject("Sketcher::SketchObject", "Sketch008")
body.addObject(sketch9)
sketch9.AttachmentSupport = (doc.XZ_Plane, [""])
sketch9.MapMode = "FlatFace"
sketch9.AttachmentOffset = App.Placement(Vector(0, 0, 28), App.Rotation())
sketch9.addGeometry([
    Part.Circle(Vector(25, -7, 0), Vector(0, 0, 1), 1),
    Part.Circle(Vector(100, -7, 0), Vector(0, 0, 1), 1),
    Part.Circle(Vector(142.5, -7, 0), Vector(0, 0, 1), 1),
    Part.Circle(Vector(25, -39, 0), Vector(0, 0, 1), 1),
    Part.Circle(Vector(100, -39, 0), Vector(0, 0, 1), 1),
    Part.Circle(Vector(142.5, -39, 0), Vector(0, 0, 1), 1),
], False)
sketch9.addConstraint([
    Sketcher.Constraint("Equal", 0, 1),
    Sketcher.Constraint("Equal", 1, 2),
    Sketcher.Constraint("Equal", 2, 3),
    Sketcher.Constraint("Equal", 3, 4),
    Sketcher.Constraint("Equal", 4, 5),
    Sketcher.Constraint("Horizontal", 0, 3, 1, 3),
    Sketcher.Constraint("Horizontal", 1, 3, 2, 3),
    Sketcher.Constraint("Horizontal", 3, 3, 4, 3),
    Sketcher.Constraint("Horizontal", 4, 3, 5, 3),
    Sketcher.Constraint("Vertical", 0, 3, 3, 3),
    Sketcher.Constraint("Vertical", 1, 3, 4, 3),
    Sketcher.Constraint("Vertical", 2, 3, 5, 3),
    Sketcher.Constraint("Diameter", 0, Q("2 mm")),
    Sketcher.Constraint("DistanceX", -1, 1, 0, 3, Q("25 mm")),
    Sketcher.Constraint("DistanceY", 0, 3, -1, 1, Q("7 mm")),
    Sketcher.Constraint("DistanceX", -1, 1, 1, 3, Q("100 mm")),
    Sketcher.Constraint("DistanceY", 3, 3, -1, 1, Q("39 mm")),
    Sketcher.Constraint("DistanceX", -1, 1, 2, 3, Q("142.5 mm")),
])
pocket3 = doc.addObject("PartDesign::Pocket", "Pocket002")
body.addObject(pocket3)
pocket3.Profile = sketch9
pocket3.Length = 10

doc.recompute()
